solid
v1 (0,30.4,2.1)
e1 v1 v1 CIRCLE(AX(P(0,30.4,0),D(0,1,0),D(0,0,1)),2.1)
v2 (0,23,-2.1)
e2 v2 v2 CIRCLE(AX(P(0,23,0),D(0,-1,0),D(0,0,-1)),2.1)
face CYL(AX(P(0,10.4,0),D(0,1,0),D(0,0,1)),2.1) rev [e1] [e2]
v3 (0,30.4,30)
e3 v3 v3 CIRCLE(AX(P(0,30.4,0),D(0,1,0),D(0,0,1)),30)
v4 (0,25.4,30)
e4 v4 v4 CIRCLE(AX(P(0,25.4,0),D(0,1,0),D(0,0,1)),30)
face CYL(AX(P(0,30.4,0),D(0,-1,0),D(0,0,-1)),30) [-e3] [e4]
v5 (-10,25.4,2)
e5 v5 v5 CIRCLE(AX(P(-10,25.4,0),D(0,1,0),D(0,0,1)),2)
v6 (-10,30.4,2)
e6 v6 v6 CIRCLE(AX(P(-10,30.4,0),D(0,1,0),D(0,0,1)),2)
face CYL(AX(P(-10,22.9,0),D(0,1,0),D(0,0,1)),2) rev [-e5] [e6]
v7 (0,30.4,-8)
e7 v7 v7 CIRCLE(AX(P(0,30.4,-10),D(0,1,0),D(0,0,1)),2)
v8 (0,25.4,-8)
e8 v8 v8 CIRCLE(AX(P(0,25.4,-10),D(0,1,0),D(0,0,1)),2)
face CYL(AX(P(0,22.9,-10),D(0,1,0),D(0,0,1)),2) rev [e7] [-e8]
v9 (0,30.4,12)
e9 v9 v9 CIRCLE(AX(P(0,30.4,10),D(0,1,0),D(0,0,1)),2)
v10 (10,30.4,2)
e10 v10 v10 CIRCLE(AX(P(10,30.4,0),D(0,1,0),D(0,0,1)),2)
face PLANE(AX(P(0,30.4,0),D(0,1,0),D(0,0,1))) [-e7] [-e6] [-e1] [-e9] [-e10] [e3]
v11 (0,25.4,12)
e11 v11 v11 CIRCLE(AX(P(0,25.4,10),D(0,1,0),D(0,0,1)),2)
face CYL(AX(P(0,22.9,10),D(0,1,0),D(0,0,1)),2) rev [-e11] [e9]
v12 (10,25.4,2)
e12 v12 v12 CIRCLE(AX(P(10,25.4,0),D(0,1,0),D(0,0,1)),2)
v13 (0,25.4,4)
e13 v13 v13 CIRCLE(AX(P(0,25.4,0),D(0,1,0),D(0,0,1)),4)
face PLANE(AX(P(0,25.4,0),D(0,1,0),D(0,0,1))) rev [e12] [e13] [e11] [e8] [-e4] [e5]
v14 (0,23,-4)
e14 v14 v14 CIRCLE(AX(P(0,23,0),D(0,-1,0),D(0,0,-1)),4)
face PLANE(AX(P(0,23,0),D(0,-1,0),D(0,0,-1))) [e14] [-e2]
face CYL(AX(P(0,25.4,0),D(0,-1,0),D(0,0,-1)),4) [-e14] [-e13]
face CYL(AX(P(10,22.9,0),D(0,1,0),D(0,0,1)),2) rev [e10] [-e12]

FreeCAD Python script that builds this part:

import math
import FreeCAD as App
import Part
import Sketcher
from FreeCAD import Vector


def add_polygon(sketch, points):
    """Adds a closed chain of lines whose ends are joined by coincident constraints."""
    first, n = sketch.GeometryCount, len(points)
    for a, b in zip(points, points[1:] + points[:1]):
        sketch.addGeometry(Part.LineSegment(App.Vector(*a, 0), App.Vector(*b, 0)), False)
    for i in range(n):
        sketch.addConstraint(Sketcher.Constraint("Coincident", first + i, 2, first + (i + 1) % n, 1))

doc = App.newDocument("Part")
body = doc.addObject("PartDesign::Body", "Body")

sketch1 = doc.addObject("Sketcher::SketchObject", "Sketch")
body.addObject(sketch1)
sketch1.AttachmentSupport = (doc.XZ_Plane, [""])
sketch1.MapMode = "FlatFace"
sketch1.addGeometry([
    Part.Circle(Vector(0, 0, 0), Vector(0, 0, 1), 4),
    Part.Circle(Vector(0, 0, 0), Vector(0, 0, 1), 2.05),
], False)
sketch1.addConstraint([
    Sketcher.Constraint("Coincident", 0, 3, -1, 1),
    Sketcher.Constraint("Coincident", 1, 3, -1, 1),
    Sketcher.Constraint("Diameter", 0, 8.0),
    Sketcher.Constraint("Diameter", 1, 4.1),
])
pad1 = doc.addObject("PartDesign::Pad", "Pad")
body.addObject(pad1)
pad1.Profile = sketch1
pad1.Length = 25.4
pad1.Reversed = True

sketch2 = doc.addObject("Sketcher::SketchObject", "Sketch001")
body.addObject(sketch2)
sketch2.AttachmentSupport = (doc.XZ_Plane, [""])
sketch2.MapMode = "FlatFace"
sketch2.AttachmentOffset = App.Placement(Vector(0, 0, -25.4), App.Rotation())
sketch2.addGeometry(Part.Circle(Vector(0, 0, 0), Vector(0, 0, 1), 30), False)
sketch2.addConstraint([
    Sketcher.Constraint("Coincident", 0, 3, -1, 1),
    Sketcher.Constraint("Diameter", 0, 60.0),
])
pad2 = doc.addObject("PartDesign::Pad", "Pad001")
body.addObject(pad2)
pad2.Profile = sketch2
pad2.Length = 5
pad2.Reversed = True

sketch3 = doc.addObject("Sketcher::SketchObject", "Sketch002")
body.addObject(sketch3)
sketch3.AttachmentSupport = (doc.XZ_Plane, [""])
sketch3.MapMode = "FlatFace"
sketch3.AttachmentOffset = App.Placement(Vector(0, 0, -30.4), App.Rotation())
sketch3.addGeometry([
    Part.Circle(Vector(0, -10, 0), Vector(0, 0, 1), 2),
    Part.Circle(Vector(10, 0, 0), Vector(0, 0, 1), 2),
    Part.Circle(Vector(0, 10, 0), Vector(0, 0, 1), 2),
    Part.Circle(Vector(-10, 0, 0), Vector(0, 0, 1), 2),
], False)
sketch3.addConstraint([
    Sketcher.Constraint("Equal", 0, 1),
    Sketcher.Constraint("Equal", 1, 2),
    Sketcher.Constraint("Equal", 2, 3),
    Sketcher.Constraint("Symmetric", 0, 3, 2, 3, -1, 1),
    Sketcher.Constraint("Symmetric", 1, 3, 3, 3, -1, 1),
    Sketcher.Constraint("PointOnObject", 0, 3, -2),
    Sketcher.Constraint("PointOnObject", 1, 3, -1),
    Sketcher.Constraint("Diameter", 0, 4.0),
    Sketcher.Constraint("DistanceY", 0, 3, -1, 1, 10.0),
    Sketcher.Constraint("DistanceX", -1, 1, 1, 3, 10.0),
])
pocket1 = doc.addObject("PartDesign::Pocket", "Pocket")
body.addObject(pocket1)
pocket1.Profile = sketch3
pocket1.Length = 7.5
pocket1.Reversed = True

sketch4 = doc.addObject("Sketcher::SketchObject", "Sketch003")
body.addObject(sketch4)
sketch4.AttachmentSupport = (doc.XZ_Plane, [""])
sketch4.MapMode = "FlatFace"
sketch4.addGeometry(Part.Circle(Vector(0, 0, 0), Vector(0, 0, 1), 3.5), False)
sketch4.addConstraint([
    Sketcher.Constraint("Coincident", 0, 3, -1, 1),
    Sketcher.Constraint("Diameter", 0, 7.0),
])
pocket2 = doc.addObject("PartDesign::Pocket", "Pocket001")
body.addObject(pocket2)
pocket2.Profile = sketch4
pocket2.Length = 3

sketch5 = doc.addObject("Sketcher::SketchObject", "Sketch004")
body.addObject(sketch5)
sketch5.AttachmentSupport = (doc.YZ_Plane, [""])
sketch5.MapMode = "FlatFace"
add_polygon(sketch5, [(3, 27.07243), (0, 27.07243), (0, -35.625916), (3, -35.625916)])
sketch5.addConstraint([
    Sketcher.Constraint("Horizontal", 0),
    Sketcher.Constraint("Vertical", 1),
    Sketcher.Constraint("Horizontal", 2),
    Sketcher.Constraint("Vertical", 3),
    Sketcher.Constraint("PointOnObject", 0, 2, -2),
    Sketcher.Constraint("DistanceX", 0, 2, 0, 1, 3.0),
    Sketcher.Constraint("DistanceY", 1, 2, 1, 1, 62.698346),
    Sketcher.Constraint("DistanceY", -1, 1, 0, 2, 27.07243),
])
pocket3 = doc.addObject("PartDesign::Pocket", "Pocket002")
body.addObject(pocket3)
pocket3.Profile = sketch5
pocket3.Length = 30
pocket3.Midplane = True

sketch6 = doc.addObject("Sketcher::SketchObject", "Sketch005")
body.addObject(sketch6)
sketch6.AttachmentSupport = (doc.XZ_Plane, [""])
sketch6.MapMode = "FlatFace"
sketch6.addGeometry(Part.Circle(Vector(0, 0, 0), Vector(0, 0, 1), 2.05), False)
sketch6.addConstraint([
    Sketcher.Constraint("Coincident", 0, 3, -1, 1),
    Sketcher.Constraint("Diameter", 0, 4.1),
])
pocket4 = doc.addObject("PartDesign::Pocket", "Pocket003")
body.addObject(pocket4)
pocket4.Profile = sketch6
pocket4.Length = 7.4

sketch7 = doc.addObject("Sketcher::SketchObject", "Sketch006")
body.addObject(sketch7)
sketch7.AttachmentSupport = (doc.XZ_Plane, [""])
sketch7.MapMode = "FlatFace"
sketch7.AttachmentOffset = App.Placement(Vector(0, 0, -3), App.Rotation())
sketch7.addGeometry([
    Part.ArcOfCircle(Part.Circle(Vector(0, 0, 0), Vector(0, 0, 1), 2.05), math.radians(51.30526), math.radians(128.69474)),
    Part.LineSegment(Vector(-1.281601, 1.6, 0), Vector(1.281601, 1.6, 0)),
], False)
sketch7.addConstraint([
    Sketcher.Constraint("Coincident", 0, 1, 1, 2),
    Sketcher.Constraint("Coincident", 1, 1, 0, 2),
    Sketcher.Constraint("Horizontal", 1),
    Sketcher.Constraint("Coincident", 0, 3, -1, 1),
    Sketcher.Constraint("Radius", 0, 2.05),
    Sketcher.Constraint("DistanceY", -1, 1, 0, 1, 1.6),
])
pad3 = doc.addObject("PartDesign::Pad", "Pad002")
body.addObject(pad3)
pad3.Profile = sketch7
pad3.Length = 10
pad3.Reversed = True

sketch8 = doc.addObject("Sketcher::SketchObject", "Sketch007")
body.addObject(sketch8)
sketch8.AttachmentSupport = (doc.XY_Plane, [""])
sketch8.MapMode = "FlatFace"
sketch8.addGeometry(Part.Circle(Vector(0, 5, 0), Vector(0, 0, 1), 1.25), False)
sketch8.addConstraint([
    Sketcher.Constraint("PointOnObject", 0, 3, -2),
    Sketcher.Constraint("Diameter", 0, 2.5),
    Sketcher.Constraint("DistanceY", -1, 1, 0, 3, 5.0),
])
pocket5 = doc.addObject("PartDesign::Pocket", "Pocket004")
body.addObject(pocket5)
pocket5.Profile = sketch8
pocket5.Length = 10
pocket5.Reversed = True

sketch9 = doc.addObject("Sketcher::SketchObject", "Sketch008")
body.addObject(sketch9)
sketch9.AttachmentSupport = (doc.XZ_Plane, [""])
sketch9.MapMode = "FlatFace"
sketch9.AttachmentOffset = App.Placement(Vector(0, 0, -3), App.Rotation())
sketch9.addGeometry(Part.Circle(Vector(0, 0, 0), Vector(0, 0, 1), 4.002578), False)
sketch9.addConstraint([
    Sketcher.Constraint("Coincident", 0, 3, -1, 1),
    Sketcher.Constraint("Diameter", 0, 8.005156),
])
pocket6 = doc.addObject("PartDesign::Pocket", "Pocket005")
body.addObject(pocket6)
pocket6.Profile = sketch9
pocket6.Length = 20

sketch10 = doc.addObject("Sketcher::SketchObject", "Sketch009")
body.addObject(sketch10)
sketch10.AttachmentSupport = (doc.XZ_Plane, [""])
sketch10.MapMode = "FlatFace"
sketch10.AttachmentOffset = App.Placement(Vector(0, 0, -30.4), App.Rotation())
sketch10.addGeometry(Part.Circle(Vector(0, 0, 0), Vector(0, 0, 1), 2.1), False)
sketch10.addConstraint([
    Sketcher.Constraint("Coincident", 0, 3, -1, 1),
    Sketcher.Constraint("Diameter", 0, 4.2),
])
pocket7 = doc.addObject("PartDesign::Pocket", "Pocket006")
body.addObject(pocket7)
pocket7.Profile = sketch10
pocket7.Length = 20
pocket7.Reversed = True

doc.recompute()
